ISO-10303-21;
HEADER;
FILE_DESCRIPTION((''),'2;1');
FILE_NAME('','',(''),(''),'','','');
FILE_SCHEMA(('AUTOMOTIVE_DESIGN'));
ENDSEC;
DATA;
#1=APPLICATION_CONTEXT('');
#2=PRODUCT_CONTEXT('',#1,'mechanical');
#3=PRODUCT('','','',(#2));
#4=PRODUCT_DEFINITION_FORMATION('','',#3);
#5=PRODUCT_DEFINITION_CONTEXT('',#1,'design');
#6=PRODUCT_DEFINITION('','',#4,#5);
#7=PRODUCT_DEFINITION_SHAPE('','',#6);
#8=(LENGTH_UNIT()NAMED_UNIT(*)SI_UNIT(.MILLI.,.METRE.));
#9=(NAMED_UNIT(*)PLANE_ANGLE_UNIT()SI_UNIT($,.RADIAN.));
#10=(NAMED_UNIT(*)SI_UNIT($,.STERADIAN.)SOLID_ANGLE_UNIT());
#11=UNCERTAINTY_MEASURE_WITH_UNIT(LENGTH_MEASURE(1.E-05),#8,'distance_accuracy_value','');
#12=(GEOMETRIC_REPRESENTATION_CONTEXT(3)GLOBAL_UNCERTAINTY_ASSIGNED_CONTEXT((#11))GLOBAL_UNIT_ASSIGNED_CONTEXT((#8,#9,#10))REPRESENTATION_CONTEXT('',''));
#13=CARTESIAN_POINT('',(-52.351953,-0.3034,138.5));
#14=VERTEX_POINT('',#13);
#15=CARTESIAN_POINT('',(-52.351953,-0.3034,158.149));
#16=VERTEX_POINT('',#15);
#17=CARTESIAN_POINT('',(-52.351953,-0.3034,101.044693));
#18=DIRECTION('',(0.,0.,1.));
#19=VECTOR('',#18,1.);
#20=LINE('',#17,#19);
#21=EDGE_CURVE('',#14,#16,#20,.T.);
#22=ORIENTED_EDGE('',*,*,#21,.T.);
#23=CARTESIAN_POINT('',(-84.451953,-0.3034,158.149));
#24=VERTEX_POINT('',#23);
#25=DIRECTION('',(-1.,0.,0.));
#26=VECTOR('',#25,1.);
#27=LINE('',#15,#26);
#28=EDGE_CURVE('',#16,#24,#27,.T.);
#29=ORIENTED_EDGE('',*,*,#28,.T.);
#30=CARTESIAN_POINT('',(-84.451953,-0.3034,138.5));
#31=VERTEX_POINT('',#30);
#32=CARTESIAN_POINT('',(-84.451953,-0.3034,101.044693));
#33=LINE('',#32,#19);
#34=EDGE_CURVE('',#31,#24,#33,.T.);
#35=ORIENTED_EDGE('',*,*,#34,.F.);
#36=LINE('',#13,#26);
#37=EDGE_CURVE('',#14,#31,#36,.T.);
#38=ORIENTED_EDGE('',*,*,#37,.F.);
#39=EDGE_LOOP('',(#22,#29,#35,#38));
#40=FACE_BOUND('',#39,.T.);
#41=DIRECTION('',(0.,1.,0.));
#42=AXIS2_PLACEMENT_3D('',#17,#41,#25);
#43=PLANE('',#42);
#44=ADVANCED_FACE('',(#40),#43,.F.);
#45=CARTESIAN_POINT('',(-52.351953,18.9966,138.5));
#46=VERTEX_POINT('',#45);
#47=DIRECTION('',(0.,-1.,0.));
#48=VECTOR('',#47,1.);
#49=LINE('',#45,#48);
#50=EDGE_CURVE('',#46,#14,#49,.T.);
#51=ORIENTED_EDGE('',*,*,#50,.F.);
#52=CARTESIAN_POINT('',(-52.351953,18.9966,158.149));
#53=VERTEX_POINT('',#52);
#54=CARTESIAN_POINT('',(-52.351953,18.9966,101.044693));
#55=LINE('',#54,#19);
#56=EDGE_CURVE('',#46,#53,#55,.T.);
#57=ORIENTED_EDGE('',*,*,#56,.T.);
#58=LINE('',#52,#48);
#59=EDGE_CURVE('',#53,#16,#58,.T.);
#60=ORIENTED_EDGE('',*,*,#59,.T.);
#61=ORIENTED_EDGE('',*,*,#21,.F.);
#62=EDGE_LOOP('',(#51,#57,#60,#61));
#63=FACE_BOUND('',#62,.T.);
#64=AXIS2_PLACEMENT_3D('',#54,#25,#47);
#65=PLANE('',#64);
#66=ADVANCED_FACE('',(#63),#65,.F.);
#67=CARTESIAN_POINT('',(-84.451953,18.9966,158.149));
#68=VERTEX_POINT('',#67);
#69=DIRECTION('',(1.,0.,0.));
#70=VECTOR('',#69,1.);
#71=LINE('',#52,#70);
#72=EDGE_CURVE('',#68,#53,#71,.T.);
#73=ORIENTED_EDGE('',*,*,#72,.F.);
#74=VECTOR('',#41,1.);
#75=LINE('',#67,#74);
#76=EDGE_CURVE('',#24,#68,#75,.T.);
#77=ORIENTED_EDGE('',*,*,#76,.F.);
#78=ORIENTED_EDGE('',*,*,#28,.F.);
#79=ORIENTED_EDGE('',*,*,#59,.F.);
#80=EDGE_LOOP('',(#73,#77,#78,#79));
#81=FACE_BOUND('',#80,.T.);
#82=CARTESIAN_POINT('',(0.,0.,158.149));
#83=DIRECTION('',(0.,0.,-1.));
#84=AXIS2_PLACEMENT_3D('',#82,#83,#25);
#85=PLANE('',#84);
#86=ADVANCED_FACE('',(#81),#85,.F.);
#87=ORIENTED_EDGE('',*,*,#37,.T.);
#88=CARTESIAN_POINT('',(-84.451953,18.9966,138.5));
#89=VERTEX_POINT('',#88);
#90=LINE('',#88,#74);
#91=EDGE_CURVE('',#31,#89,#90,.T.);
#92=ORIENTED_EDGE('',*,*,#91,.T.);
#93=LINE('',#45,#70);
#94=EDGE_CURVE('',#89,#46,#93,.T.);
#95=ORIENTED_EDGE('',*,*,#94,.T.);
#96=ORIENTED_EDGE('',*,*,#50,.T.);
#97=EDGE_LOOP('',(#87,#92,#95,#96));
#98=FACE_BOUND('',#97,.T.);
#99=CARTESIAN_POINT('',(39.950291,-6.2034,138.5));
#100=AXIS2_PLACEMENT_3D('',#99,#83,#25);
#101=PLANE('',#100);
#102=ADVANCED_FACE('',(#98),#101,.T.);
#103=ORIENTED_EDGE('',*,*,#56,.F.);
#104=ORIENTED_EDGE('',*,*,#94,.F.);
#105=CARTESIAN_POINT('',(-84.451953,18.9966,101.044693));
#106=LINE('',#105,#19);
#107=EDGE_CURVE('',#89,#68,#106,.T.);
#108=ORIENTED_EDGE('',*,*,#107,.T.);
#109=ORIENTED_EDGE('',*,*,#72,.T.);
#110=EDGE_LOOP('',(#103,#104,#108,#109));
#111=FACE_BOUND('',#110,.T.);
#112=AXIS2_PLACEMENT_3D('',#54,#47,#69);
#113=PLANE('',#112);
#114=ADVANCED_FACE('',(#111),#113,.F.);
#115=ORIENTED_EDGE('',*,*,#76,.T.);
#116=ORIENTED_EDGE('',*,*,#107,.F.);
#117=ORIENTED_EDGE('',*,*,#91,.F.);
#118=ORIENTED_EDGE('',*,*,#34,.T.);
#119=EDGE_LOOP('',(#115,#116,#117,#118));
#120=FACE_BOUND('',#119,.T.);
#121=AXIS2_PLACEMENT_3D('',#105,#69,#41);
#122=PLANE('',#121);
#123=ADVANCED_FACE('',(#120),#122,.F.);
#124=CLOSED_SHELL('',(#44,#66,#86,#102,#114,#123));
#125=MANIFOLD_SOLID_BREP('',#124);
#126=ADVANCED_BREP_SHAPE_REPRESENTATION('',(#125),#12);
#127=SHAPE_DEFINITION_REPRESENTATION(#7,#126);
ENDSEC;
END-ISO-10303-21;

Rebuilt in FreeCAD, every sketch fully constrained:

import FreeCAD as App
import Part
import Sketcher

V = App.Vector
Q = App.Units.Quantity


def add_polygon(sketch, points):
    """Adds a closed chain of lines whose ends are joined by coincident constraints."""
    first, n = sketch.GeometryCount, len(points)
    for a, b in zip(points, points[1:] + points[:1]):
        sketch.addGeometry(Part.LineSegment(App.Vector(*a, 0), App.Vector(*b, 0)), False)
    for i in range(n):
        sketch.addConstraint(Sketcher.Constraint("Coincident", first + i, 2, first + (i + 1) % n, 1))

doc = App.newDocument("Part")
body = doc.addObject("PartDesign::Body", "Body")

sketch1 = body.newObject("Sketcher::SketchObject", "Sketch")
sketch1.AttachmentSupport = (doc.getObject("XY_Plane"), [""])
sketch1.MapMode = "FlatFace"
sketch1.AttachmentOffset = App.Placement(V(0, 0, 158.149), App.Rotation())
add_polygon(sketch1, [(-52, 19), (-52, 0), (-84, 0), (-84, 19)])
sketch1.addConstraint([
    Sketcher.Constraint("Vertical", 0),
    Sketcher.Constraint("Horizontal", 1),
    Sketcher.Constraint("Vertical", 2),
    Sketcher.Constraint("Horizontal", 3),
    Sketcher.Constraint("DistanceX", 1, 2, 1, 1, Q("32.1 mm")),
    Sketcher.Constraint("DistanceY", 0, 2, 0, 1, Q("19.3 mm")),
    Sketcher.Constraint("DistanceY", 0, 2, -1, 1, Q("0.3034 mm")),
    Sketcher.Constraint("DistanceX", 0, 2, -1, 1, Q("52.351953 mm")),
])
pad1 = body.newObject("PartDesign::Pad", "Pad")
pad1.Profile = sketch1
pad1.Length = 19.649
pad1.Reversed = True

doc.recompute()
